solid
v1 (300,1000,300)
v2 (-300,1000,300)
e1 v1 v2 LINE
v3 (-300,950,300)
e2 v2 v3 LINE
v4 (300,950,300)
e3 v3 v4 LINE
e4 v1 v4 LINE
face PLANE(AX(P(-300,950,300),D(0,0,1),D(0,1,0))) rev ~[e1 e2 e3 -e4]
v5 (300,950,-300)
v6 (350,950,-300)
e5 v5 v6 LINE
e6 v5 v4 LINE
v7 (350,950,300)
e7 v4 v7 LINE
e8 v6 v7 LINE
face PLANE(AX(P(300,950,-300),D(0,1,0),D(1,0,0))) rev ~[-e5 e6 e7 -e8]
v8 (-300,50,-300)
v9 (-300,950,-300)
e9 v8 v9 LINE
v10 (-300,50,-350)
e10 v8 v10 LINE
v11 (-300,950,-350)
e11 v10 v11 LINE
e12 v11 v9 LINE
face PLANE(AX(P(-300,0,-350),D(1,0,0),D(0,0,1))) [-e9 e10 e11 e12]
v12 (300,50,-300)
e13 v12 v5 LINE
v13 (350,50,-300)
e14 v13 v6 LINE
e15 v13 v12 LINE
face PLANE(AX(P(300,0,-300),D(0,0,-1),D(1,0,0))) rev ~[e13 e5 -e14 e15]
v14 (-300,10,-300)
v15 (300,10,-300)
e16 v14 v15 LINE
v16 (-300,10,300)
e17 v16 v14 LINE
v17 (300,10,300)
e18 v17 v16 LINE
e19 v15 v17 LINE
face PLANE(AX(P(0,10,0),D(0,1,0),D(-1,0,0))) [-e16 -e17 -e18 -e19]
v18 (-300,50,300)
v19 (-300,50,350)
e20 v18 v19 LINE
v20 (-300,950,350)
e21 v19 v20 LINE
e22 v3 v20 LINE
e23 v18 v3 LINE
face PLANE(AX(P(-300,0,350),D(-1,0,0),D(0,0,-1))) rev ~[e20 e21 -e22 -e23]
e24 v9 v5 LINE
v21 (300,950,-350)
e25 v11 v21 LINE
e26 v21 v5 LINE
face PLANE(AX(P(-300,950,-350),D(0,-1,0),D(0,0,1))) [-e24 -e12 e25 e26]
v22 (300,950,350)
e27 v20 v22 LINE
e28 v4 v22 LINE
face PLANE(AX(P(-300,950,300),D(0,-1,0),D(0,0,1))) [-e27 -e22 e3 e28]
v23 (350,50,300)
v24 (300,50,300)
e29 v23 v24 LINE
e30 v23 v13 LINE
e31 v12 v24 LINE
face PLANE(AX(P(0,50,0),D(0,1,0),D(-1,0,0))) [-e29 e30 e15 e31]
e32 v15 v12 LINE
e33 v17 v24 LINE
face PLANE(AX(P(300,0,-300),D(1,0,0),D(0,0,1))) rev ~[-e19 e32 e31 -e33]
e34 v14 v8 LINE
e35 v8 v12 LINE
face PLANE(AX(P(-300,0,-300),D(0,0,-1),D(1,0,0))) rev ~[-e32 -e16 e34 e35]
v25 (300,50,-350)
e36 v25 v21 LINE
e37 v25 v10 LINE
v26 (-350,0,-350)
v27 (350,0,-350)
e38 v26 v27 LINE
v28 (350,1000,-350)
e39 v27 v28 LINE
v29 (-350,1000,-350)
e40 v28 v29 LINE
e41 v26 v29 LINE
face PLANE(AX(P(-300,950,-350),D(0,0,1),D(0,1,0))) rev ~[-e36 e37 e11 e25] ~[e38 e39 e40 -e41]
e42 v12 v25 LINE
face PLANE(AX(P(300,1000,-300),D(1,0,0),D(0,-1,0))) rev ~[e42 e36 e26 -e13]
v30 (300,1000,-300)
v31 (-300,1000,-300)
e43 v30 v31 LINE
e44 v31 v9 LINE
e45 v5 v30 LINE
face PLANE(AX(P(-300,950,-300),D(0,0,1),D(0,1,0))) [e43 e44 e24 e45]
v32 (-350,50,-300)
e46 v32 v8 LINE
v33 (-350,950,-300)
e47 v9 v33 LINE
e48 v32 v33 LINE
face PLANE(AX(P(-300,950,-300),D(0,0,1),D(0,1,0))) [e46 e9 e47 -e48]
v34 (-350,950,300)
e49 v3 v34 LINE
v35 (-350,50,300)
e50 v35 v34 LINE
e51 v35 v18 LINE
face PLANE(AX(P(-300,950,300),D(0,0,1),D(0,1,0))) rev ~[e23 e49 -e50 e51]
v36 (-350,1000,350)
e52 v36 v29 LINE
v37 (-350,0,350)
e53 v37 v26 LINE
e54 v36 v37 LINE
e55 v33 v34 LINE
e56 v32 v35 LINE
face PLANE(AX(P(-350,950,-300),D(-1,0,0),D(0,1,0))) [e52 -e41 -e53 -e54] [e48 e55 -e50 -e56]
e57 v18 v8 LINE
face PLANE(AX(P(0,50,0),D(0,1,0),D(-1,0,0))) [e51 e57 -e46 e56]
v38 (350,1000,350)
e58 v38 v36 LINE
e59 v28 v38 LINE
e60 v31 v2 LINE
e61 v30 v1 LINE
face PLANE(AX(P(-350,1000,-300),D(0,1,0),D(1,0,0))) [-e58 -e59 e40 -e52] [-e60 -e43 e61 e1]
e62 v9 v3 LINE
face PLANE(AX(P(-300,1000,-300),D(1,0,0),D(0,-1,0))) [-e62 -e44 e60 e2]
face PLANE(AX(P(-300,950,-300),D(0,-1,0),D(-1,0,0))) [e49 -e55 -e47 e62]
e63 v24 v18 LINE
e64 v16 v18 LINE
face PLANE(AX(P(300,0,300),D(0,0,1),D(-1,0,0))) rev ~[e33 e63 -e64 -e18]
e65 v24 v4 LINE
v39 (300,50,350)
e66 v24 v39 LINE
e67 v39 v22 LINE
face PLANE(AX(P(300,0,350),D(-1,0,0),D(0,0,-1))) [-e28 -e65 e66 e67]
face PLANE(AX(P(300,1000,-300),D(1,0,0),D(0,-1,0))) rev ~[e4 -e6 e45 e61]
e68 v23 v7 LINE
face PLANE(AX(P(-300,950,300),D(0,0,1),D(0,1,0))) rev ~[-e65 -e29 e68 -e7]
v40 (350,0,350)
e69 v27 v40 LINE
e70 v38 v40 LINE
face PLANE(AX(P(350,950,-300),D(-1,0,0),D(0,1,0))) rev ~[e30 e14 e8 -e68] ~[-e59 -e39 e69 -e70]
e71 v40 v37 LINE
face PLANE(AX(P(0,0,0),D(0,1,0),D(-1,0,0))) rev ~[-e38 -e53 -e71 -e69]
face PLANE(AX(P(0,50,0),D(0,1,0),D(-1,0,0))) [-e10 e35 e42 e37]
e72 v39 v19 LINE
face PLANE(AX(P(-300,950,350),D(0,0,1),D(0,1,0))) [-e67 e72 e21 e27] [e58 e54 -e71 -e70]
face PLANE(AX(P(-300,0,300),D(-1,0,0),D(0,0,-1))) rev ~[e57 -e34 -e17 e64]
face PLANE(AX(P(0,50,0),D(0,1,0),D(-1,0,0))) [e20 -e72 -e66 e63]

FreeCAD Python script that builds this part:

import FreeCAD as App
import Part
import Sketcher

V = App.Vector
Q = App.Units.Quantity


def add_polygon(sketch, points):
    """Adds a closed chain of lines whose ends are joined by coincident constraints."""
    first, n = sketch.GeometryCount, len(points)
    for a, b in zip(points, points[1:] + points[:1]):
        sketch.addGeometry(Part.LineSegment(App.Vector(*a, 0), App.Vector(*b, 0)), False)
    for i in range(n):
        sketch.addConstraint(Sketcher.Constraint("Coincident", first + i, 2, first + (i + 1) % n, 1))

doc = App.newDocument("Part")
body = doc.addObject("PartDesign::Body", "Body")

sketch1 = body.newObject("Sketcher::SketchObject", "Sketch")
sketch1.AttachmentSupport = (doc.getObject("XZ_Plane"), [""])
sketch1.MapMode = "FlatFace"
add_polygon(sketch1, [(-300, 300), (300, 300), (300, -300), (-300, -300)])
sketch1.addConstraint([
    Sketcher.Constraint("Horizontal", 0),
    Sketcher.Constraint("Vertical", 1),
    Sketcher.Constraint("Horizontal", 2),
    Sketcher.Constraint("Vertical", 3),
    Sketcher.Constraint("Symmetric", 0, 2, 2, 2, -1, 1),
    Sketcher.Constraint("Equal", 2, 1),
    Sketcher.Constraint("DistanceX", 0, 1, 0, 2, Q("600 mm")),
])
pad1 = body.newObject("PartDesign::Pad", "Pad")
pad1.Profile = sketch1
pad1.Length = 10
pad1.Reversed = True

sketch2 = body.newObject("Sketcher::SketchObject", "Sketch001")
sketch2.AttachmentSupport = (doc.getObject("XZ_Plane"), [""])
sketch2.MapMode = "FlatFace"
add_polygon(sketch2, [(350, 350), (350, -350), (-350, -350), (-350, 350)])
add_polygon(sketch2, [(300, 300), (-300, 300), (-300, -300), (300, -300)])
sketch2.addConstraint([
    Sketcher.Constraint("Vertical", 0),
    Sketcher.Constraint("Horizontal", 1),
    Sketcher.Constraint("Vertical", 2),
    Sketcher.Constraint("Horizontal", 3),
    Sketcher.Constraint("Horizontal", 4),
    Sketcher.Constraint("Vertical", 5),
    Sketcher.Constraint("Horizontal", 6),
    Sketcher.Constraint("Vertical", 7),
    Sketcher.Constraint("Symmetric", 0, 2, 2, 2, -1, 1),
    Sketcher.Constraint("Symmetric", 4, 2, 6, 2, -1, 1),
    Sketcher.Constraint("Equal", 3, 0),
    Sketcher.Constraint("Equal", 6, 5),
    Sketcher.Constraint("DistanceX", 1, 2, 1, 1, Q("700 mm")),
    Sketcher.Constraint("DistanceX", 4, 2, 4, 1, Q("600 mm")),
])
pad2 = body.newObject("PartDesign::Pad", "Pad001")
pad2.Profile = sketch2
pad2.Length = 50
pad2.Reversed = True

sketch3 = body.newObject("Sketcher::SketchObject", "Sketch002")
sketch3.AttachmentSupport = (doc.getObject("XZ_Plane"), [""])
sketch3.MapMode = "FlatFace"
add_polygon(sketch3, [(350, 300), (300, 300), (300, 350), (350, 350)])
add_polygon(sketch3, [(-300, 350), (-300, 300), (-350, 300), (-350, 350)])
add_polygon(sketch3, [(300, -350), (300, -300), (350, -300), (350, -350)])
add_polygon(sketch3, [(-350, -300), (-300, -300), (-300, -350), (-350, -350)])
sketch3.addConstraint([
    Sketcher.Constraint("Horizontal", 0),
    Sketcher.Constraint("Vertical", 1),
    Sketcher.Constraint("Horizontal", 2),
    Sketcher.Constraint("Vertical", 3),
    Sketcher.Constraint("Vertical", 4),
    Sketcher.Constraint("Horizontal", 5),
    Sketcher.Constraint("Vertical", 6),
    Sketcher.Constraint("Horizontal", 7),
    Sketcher.Constraint("Vertical", 8),
    Sketcher.Constraint("Horizontal", 9),
    Sketcher.Constraint("Vertical", 10),
    Sketcher.Constraint("Horizontal", 11),
    Sketcher.Constraint("Horizontal", 12),
    Sketcher.Constraint("Vertical", 13),
    Sketcher.Constraint("Horizontal", 14),
    Sketcher.Constraint("Vertical", 15),
    Sketcher.Constraint("Symmetric", 4, 2, 8, 2, -1, 1),
    Sketcher.Constraint("Symmetric", 6, 2, 10, 2, -1, 1),
    Sketcher.Constraint("Symmetric", 0, 2, 12, 2, -1, 1),
    Sketcher.Constraint("Symmetric", 2, 2, 14, 2, -1, 1),
    Sketcher.Constraint("Symmetric", 0, 2, 4, 2, -2),
    Sketcher.Constraint("Symmetric", 2, 2, 6, 2, -2),
    Sketcher.Constraint("Equal", 14, 1),
    Sketcher.Constraint("DistanceX", 4, 2, 0, 2, Q("600 mm")),
    Sketcher.Constraint("DistanceX", 5, 2, 3, 2, Q("700 mm")),
    Sketcher.Constraint("DistanceY", 8, 2, 0, 2, Q("600 mm")),
])
pad3 = body.newObject("PartDesign::Pad", "Pad002")
pad3.Profile = sketch3
pad3.Length = 1000
pad3.Reversed = True

sketch4 = body.newObject("Sketcher::SketchObject", "Sketch003")
sketch4.AttachmentSupport = (doc.getObject("YZ_Plane"), [""])
sketch4.MapMode = "FlatFace"
sketch4.AttachmentOffset = App.Placement(V(0, 0, -300), App.Rotation())
add_polygon(sketch4, [(1000, 350), (950, 350), (950, 300), (1000, 300)])
sketch4.addConstraint([
    Sketcher.Constraint("Horizontal", 0),
    Sketcher.Constraint("Vertical", 1),
    Sketcher.Constraint("Horizontal", 2),
    Sketcher.Constraint("Vertical", 3),
    Sketcher.Constraint("Equal", 2, 1),
    Sketcher.Constraint("DistanceX", 0, 2, 0, 1, Q("50 mm")),
    Sketcher.Constraint("DistanceX", -1, 1, 0, 2, Q("950 mm")),
    Sketcher.Constraint("DistanceY", -1, 1, 0, 2, Q("350 mm")),
])
pad4 = body.newObject("PartDesign::Pad", "Pad003")
pad4.Profile = sketch4
pad4.Length = 600

sketch5 = body.newObject("Sketcher::SketchObject", "Sketch004")
sketch5.AttachmentSupport = (doc.getObject("XY_Plane"), [""])
sketch5.MapMode = "FlatFace"
sketch5.AttachmentOffset = App.Placement(V(0, 0, -300), App.Rotation())
add_polygon(sketch5, [(350, 950), (350, 1000), (300, 1000), (300, 950)])
sketch5.addConstraint([
    Sketcher.Constraint("Vertical", 0),
    Sketcher.Constraint("Horizontal", 1),
    Sketcher.Constraint("Vertical", 2),
    Sketcher.Constraint("Horizontal", 3),
    Sketcher.Constraint("Equal", 3, 0),
    Sketcher.Constraint("DistanceX", 1, 2, 1, 1, Q("50 mm")),
    Sketcher.Constraint("DistanceX", -1, 1, 0, 2, Q("350 mm")),
    Sketcher.Constraint("DistanceY", -1, 1, 0, 2, Q("1000 mm")),
])
pad5 = body.newObject("PartDesign::Pad", "Pad004")
pad5.Profile = sketch5
pad5.Length = 600

sketch6 = body.newObject("Sketcher::SketchObject", "Sketch005")
sketch6.AttachmentSupport = (doc.getObject("YZ_Plane"), [""])
sketch6.MapMode = "FlatFace"
sketch6.AttachmentOffset = App.Placement(V(0, 0, -300), App.Rotation())
add_polygon(sketch6, [(1000, -300), (950, -300), (950, -350), (1000, -350)])
sketch6.addConstraint([
    Sketcher.Constraint("Horizontal", 0),
    Sketcher.Constraint("Vertical", 1),
    Sketcher.Constraint("Horizontal", 2),
    Sketcher.Constraint("Vertical", 3),
    Sketcher.Constraint("Equal", 2, 1),
    Sketcher.Constraint("DistanceX", 0, 2, 0, 1, Q("50 mm")),
    Sketcher.Constraint("DistanceX", -1, 1, 0, 2, Q("950 mm")),
    Sketcher.Constraint("DistanceY", 0, 2, -1, 1, Q("300 mm")),
])
pad6 = body.newObject("PartDesign::Pad", "Pad005")
pad6.Profile = sketch6
pad6.Length = 600

sketch7 = body.newObject("Sketcher::SketchObject", "Sketch006")
sketch7.AttachmentSupport = (doc.getObject("XY_Plane"), [""])
sketch7.MapMode = "FlatFace"
sketch7.AttachmentOffset = App.Placement(V(0, 0, -300), App.Rotation())
add_polygon(sketch7, [(-350, 1000), (-350, 950), (-300, 950), (-300, 1000)])
sketch7.addConstraint([
    Sketcher.Constraint("Vertical", 0),
    Sketcher.Constraint("Horizontal", 1),
    Sketcher.Constraint("Vertical", 2),
    Sketcher.Constraint("Horizontal", 3),
    Sketcher.Constraint("Equal", 3, 0),
    Sketcher.Constraint("DistanceX", 1, 1, 1, 2, Q("50 mm")),
    Sketcher.Constraint("DistanceX", 0, 2, -1, 1, Q("350 mm")),
    Sketcher.Constraint("DistanceY", -1, 1, 0, 2, Q("950 mm")),
])
pad7 = body.newObject("PartDesign::Pad", "Pad006")
pad7.Profile = sketch7
pad7.Length = 600

doc.recompute()
